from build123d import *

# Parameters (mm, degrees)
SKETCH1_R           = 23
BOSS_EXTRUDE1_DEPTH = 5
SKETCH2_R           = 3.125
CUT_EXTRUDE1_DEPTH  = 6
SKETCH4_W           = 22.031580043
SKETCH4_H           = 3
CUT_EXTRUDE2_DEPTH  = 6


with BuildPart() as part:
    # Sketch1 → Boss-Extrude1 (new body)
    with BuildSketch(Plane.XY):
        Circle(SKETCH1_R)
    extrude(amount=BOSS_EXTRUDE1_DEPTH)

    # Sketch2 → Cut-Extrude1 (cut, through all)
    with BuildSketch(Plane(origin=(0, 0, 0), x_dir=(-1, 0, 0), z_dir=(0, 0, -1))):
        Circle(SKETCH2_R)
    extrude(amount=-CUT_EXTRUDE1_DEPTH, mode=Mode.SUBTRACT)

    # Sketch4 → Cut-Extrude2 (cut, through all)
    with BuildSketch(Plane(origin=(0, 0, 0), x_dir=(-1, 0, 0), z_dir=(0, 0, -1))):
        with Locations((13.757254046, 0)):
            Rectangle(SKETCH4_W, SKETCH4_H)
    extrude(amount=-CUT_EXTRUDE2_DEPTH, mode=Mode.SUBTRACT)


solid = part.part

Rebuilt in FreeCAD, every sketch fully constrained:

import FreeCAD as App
import Part
import Sketcher
from FreeCAD import Vector

doc = App.newDocument("Part")
body = doc.addObject("PartDesign::Body", "Body")

# Sketch on XY plane
sketch1 = body.newObject("Sketcher::SketchObject", "Sketch")
sketch1.AttachmentSupport = (doc.getObject("XY_Plane"), [""])
sketch1.MapMode = "FlatFace"
sketch1.addGeometry(Part.Circle(Vector(0, 0, 0), Vector(0, 0, 1), 23), False)
sketch1.addConstraint([
    Sketcher.Constraint("Coincident", 0, 3, -1, 1),
    Sketcher.Constraint("Diameter", 0, 46.0),
])
pad1 = body.newObject("PartDesign::Pad", "Pad")
pad1.Profile = sketch1
pad1.Length = 5

# Sketch on XY plane
sketch2 = body.newObject("Sketcher::SketchObject", "Sketch001")
sketch2.AttachmentSupport = (doc.getObject("XY_Plane"), [""])
sketch2.MapMode = "FlatFace"
sketch2.addGeometry(Part.Circle(Vector(0, 0, 0), Vector(0, 0, 1), 3.1), False)
sketch2.addConstraint([
    Sketcher.Constraint("Coincident", 0, 3, -1, 1),
    Sketcher.Constraint("Diameter", 0, 6.25),
])
pocket1 = body.newObject("PartDesign::Pocket", "Pocket")
pocket1.Profile = sketch2
pocket1.Type = "ThroughAll"
pocket1.Reversed = True

# Sketch on XY plane
sketch3 = body.newObject("Sketcher::SketchObject", "Sketch002")
sketch3.AttachmentSupport = (doc.getObject("XY_Plane"), [""])
sketch3.MapMode = "FlatFace"
sketch3.addGeometry([
    Part.LineSegment(Vector(-2.7, 1.5, 0), Vector(-2.7, -1.5, 0)),
    Part.LineSegment(Vector(-2.7, -1.5, 0), Vector(-24.8, -1.5, 0)),
    Part.LineSegment(Vector(-24.8, -1.5, 0), Vector(-24.8, 1.5, 0)),
    Part.LineSegment(Vector(-24.8, 1.5, 0), Vector(-2.7, 1.5, 0)),
], False)
sketch3.addConstraint([
    Sketcher.Constraint("Coincident", 0, 2, 1, 1),
    Sketcher.Constraint("Coincident", 1, 2, 2, 1),
    Sketcher.Constraint("Coincident", 2, 2, 3, 1),
    Sketcher.Constraint("Coincident", 3, 2, 0, 1),
    Sketcher.Constraint("Vertical", 0),
    Sketcher.Constraint("Horizontal", 1),
    Sketcher.Constraint("Vertical", 2),
    Sketcher.Constraint("Horizontal", 3),
    Sketcher.Constraint("DistanceY", 0, 2, 0, 1, 3.0),
    Sketcher.Constraint("DistanceY", 0, 2, -1, 1, 1.5),
    Sketcher.Constraint("DistanceX", 1, 2, 1, 1, 22.03158),
    Sketcher.Constraint("DistanceX", 0, 2, -1, 1, 2.741464),
])
pocket2 = body.newObject("PartDesign::Pocket", "Pocket001")
pocket2.Profile = sketch3
pocket2.Type = "ThroughAll"
pocket2.Reversed = True

doc.recompute()
